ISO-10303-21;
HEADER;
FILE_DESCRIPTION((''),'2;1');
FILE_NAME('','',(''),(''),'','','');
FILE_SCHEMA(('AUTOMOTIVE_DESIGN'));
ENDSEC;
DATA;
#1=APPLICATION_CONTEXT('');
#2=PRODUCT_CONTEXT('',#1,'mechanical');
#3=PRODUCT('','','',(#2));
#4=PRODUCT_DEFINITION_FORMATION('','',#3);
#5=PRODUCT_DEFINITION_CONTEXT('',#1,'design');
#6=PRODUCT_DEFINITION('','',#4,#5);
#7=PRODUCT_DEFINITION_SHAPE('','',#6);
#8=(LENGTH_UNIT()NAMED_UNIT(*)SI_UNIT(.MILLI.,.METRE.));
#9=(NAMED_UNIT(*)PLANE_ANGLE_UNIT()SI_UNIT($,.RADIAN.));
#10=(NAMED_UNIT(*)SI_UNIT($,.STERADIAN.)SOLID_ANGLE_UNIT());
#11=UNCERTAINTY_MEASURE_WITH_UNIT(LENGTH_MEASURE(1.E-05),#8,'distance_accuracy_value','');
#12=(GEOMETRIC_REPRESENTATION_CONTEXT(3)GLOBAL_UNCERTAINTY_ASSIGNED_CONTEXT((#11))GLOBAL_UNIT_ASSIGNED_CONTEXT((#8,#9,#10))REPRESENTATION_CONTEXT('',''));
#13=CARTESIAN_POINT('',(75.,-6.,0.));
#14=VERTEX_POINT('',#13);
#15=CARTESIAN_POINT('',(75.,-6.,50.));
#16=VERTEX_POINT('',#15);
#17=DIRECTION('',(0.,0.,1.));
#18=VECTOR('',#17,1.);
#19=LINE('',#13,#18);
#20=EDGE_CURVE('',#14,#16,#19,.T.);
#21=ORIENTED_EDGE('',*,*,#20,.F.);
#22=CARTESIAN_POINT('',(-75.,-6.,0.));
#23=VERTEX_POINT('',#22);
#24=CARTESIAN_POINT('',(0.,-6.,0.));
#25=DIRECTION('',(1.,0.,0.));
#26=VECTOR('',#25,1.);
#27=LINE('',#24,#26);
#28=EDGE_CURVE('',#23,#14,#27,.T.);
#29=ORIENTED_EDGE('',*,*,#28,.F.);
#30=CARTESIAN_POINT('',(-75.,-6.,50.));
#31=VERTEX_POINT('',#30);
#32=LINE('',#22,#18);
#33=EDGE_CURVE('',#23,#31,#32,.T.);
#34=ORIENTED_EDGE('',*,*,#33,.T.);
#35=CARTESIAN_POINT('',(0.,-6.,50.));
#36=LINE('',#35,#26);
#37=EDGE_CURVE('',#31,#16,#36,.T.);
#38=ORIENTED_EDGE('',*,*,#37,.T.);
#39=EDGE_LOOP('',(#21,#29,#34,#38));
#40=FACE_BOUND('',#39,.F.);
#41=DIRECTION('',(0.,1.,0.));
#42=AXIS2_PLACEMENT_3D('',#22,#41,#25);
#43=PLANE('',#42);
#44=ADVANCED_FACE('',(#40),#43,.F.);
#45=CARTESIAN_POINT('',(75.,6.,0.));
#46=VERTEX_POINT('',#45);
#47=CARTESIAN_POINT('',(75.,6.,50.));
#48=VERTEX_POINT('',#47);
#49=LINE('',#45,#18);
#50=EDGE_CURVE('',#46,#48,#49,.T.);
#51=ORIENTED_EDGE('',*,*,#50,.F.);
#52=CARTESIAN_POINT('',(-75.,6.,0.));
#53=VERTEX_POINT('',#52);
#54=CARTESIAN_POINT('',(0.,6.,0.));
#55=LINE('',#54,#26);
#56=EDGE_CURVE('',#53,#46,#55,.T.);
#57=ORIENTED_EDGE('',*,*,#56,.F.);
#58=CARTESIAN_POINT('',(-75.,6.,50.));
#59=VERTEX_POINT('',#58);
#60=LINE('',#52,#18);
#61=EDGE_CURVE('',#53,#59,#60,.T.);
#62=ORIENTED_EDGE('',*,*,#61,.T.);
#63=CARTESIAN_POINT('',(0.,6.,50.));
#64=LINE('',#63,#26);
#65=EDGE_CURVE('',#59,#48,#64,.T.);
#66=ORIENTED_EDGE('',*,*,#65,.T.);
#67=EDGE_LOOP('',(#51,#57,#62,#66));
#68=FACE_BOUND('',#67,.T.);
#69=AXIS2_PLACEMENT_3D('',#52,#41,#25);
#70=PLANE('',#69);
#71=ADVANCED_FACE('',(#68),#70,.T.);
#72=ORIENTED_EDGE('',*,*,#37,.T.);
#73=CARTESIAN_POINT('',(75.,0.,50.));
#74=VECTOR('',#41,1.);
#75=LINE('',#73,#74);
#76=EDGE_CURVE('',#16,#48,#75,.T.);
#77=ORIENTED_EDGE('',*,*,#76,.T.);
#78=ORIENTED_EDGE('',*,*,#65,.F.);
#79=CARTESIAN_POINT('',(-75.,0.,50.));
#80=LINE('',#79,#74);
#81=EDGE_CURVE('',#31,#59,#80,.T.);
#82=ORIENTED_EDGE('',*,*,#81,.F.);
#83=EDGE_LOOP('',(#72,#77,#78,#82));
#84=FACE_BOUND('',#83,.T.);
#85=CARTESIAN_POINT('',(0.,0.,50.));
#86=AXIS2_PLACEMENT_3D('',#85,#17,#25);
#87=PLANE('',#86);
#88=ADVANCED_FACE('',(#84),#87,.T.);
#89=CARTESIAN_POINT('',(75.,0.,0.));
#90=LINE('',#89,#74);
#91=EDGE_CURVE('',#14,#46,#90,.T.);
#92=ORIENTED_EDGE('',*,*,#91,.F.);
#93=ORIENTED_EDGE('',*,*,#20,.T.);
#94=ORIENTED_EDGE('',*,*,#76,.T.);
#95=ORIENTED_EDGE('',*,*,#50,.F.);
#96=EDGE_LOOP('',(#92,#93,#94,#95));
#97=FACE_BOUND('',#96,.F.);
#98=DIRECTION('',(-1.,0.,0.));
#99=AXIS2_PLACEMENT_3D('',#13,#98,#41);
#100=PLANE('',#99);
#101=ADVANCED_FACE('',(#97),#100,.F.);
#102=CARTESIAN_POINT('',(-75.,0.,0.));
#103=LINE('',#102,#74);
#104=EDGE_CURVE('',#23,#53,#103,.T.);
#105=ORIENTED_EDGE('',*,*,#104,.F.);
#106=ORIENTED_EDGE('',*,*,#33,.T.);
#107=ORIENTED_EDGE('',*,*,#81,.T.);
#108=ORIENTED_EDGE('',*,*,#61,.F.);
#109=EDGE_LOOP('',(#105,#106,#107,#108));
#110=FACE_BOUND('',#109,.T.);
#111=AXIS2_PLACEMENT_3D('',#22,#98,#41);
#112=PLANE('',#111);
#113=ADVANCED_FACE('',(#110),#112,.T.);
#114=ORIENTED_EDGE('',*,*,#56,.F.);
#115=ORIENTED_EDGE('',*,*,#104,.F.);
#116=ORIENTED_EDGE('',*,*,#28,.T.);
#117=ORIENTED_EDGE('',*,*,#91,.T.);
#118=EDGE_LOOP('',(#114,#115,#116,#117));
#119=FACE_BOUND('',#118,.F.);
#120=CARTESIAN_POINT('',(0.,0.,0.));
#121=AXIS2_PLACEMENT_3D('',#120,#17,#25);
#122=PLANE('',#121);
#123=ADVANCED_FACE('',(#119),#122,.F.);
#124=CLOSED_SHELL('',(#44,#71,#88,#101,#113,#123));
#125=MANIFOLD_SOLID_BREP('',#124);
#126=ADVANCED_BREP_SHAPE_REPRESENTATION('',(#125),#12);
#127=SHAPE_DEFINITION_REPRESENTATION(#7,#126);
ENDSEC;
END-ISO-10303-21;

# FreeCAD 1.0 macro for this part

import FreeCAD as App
import Part
import Sketcher
Q = App.Units.Quantity


def add_polygon(sketch, points):
    """Adds a closed chain of lines whose ends are joined by coincident constraints."""
    first, n = sketch.GeometryCount, len(points)
    for a, b in zip(points, points[1:] + points[:1]):
        sketch.addGeometry(Part.LineSegment(App.Vector(*a, 0), App.Vector(*b, 0)), False)
    for i in range(n):
        sketch.addConstraint(Sketcher.Constraint("Coincident", first + i, 2, first + (i + 1) % n, 1))

doc = App.newDocument("Part")
body = doc.addObject("PartDesign::Body", "Body")

# Sketch on XY plane
sketch1 = body.newObject("Sketcher::SketchObject", "Sketch")
sketch1.AttachmentSupport = (doc.getObject("XY_Plane"), [""])
sketch1.MapMode = "FlatFace"
add_polygon(sketch1, [(-75, 6), (-75, -6), (75, -6), (75, 6)])  # lines 0-3
sketch1.addConstraint([
    Sketcher.Constraint("Vertical", 0),
    Sketcher.Constraint("Horizontal", 1),
    Sketcher.Constraint("Vertical", 2),
    Sketcher.Constraint("Horizontal", 3),
    Sketcher.Constraint("Symmetric", 0, 2, 2, 2, -1, 1),
    Sketcher.Constraint("DistanceX", 1, 1, 1, 2, Q("150 mm")),
    Sketcher.Constraint("DistanceY", 0, 2, 0, 1, Q("12 mm")),
])
pad1 = body.newObject("PartDesign::Pad", "Pad")
pad1.Profile = sketch1
pad1.Length = 50

doc.recompute()
